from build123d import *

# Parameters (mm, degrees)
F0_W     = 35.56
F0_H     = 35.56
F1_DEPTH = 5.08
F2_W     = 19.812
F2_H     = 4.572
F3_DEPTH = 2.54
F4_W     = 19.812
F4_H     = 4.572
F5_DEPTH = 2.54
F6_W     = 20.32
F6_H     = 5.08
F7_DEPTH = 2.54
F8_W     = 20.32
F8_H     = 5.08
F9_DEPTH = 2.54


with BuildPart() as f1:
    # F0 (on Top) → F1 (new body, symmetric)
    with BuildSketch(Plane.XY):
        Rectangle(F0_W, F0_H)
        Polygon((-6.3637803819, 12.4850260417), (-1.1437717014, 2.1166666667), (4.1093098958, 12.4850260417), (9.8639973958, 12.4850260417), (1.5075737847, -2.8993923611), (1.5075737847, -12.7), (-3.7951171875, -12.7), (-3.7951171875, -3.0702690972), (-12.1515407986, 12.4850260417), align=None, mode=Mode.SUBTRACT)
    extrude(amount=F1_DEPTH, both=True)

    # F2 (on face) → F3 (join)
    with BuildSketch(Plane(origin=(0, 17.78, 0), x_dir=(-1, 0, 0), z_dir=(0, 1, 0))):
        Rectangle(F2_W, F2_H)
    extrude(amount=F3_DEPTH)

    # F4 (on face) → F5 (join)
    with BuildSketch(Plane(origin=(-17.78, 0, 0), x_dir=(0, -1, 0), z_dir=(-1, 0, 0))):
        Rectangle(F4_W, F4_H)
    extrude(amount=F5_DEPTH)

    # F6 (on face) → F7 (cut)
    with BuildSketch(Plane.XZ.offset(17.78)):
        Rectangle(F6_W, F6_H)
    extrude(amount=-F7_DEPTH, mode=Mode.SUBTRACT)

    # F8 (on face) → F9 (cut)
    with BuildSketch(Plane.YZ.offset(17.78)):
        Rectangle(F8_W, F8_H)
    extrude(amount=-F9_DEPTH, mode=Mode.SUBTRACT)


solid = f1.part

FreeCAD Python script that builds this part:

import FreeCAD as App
import Part
import Sketcher
Q = App.Units.Quantity

doc = App.newDocument("Part")
params = doc.addObject("Spreadsheet::Sheet", "Params")
for row, (alias, value) in enumerate([
    ("sketch1_width", "1.4 in"),
    ("pad1_length", "0.4 in"),
    ("sketch2_width", "0.78 in"),
    ("sketch2_height", "0.18 in"),
    ("pad2_length", "0.1 in"),
    ("sketch3_width", "0.78 in"),
    ("sketch3_height", "0.18 in"),
    ("pad3_length", "0.1 in"),
    ("sketch4_width", "0.8 in"),
    ("sketch4_height", "0.2 in"),
    ("pocket1_length", "0.1 in"),
    ("sketch5_width", "0.8 in"),
    ("sketch5_height", "0.2 in"),
    ("pocket2_length", "0.1 in"),
], start=1):
    params.set(f"A{row}", alias)
    params.set(f"B{row}", "=" + value)
    params.setAlias(f"B{row}", alias)

body = doc.addObject("PartDesign::Body", "Body")

# Sketch on XY plane
sketch1 = body.newObject("Sketcher::SketchObject", "Sketch")
sketch1.AttachmentSupport = (doc.getObject("XY_Plane"), [""])
sketch1.MapMode = "FlatFace"
sketch1.addGeometry([
    Part.LineSegment(App.Vector(-18, 18, 0), App.Vector(-18, -18, 0)),  # 0
    Part.LineSegment(App.Vector(-18, -18, 0), App.Vector(18, -18, 0)),  # 1
    Part.LineSegment(App.Vector(18, -18, 0), App.Vector(18, 18, 0)),  # 2
    Part.LineSegment(App.Vector(18, 18, 0), App.Vector(-18, 18, 0)),  # 3
    Part.LineSegment(App.Vector(-12, 12, 0), App.Vector(-6, 12, 0)),  # 4
    Part.LineSegment(App.Vector(-6, 12, 0), App.Vector(-1, 2, 0)),  # 5
    Part.LineSegment(App.Vector(-1, 2, 0), App.Vector(4, 12, 0)),  # 6
    Part.LineSegment(App.Vector(4, 12, 0), App.Vector(10, 12, 0)),  # 7
    Part.LineSegment(App.Vector(10, 12, 0), App.Vector(2, -3, 0)),  # 8
    Part.LineSegment(App.Vector(2, -3, 0), App.Vector(2, -13, 0)),  # 9
    Part.LineSegment(App.Vector(2, -13, 0), App.Vector(-4, -13, 0)),  # 10
    Part.LineSegment(App.Vector(-4, -13, 0), App.Vector(-4, -3, 0)),  # 11
    Part.LineSegment(App.Vector(-4, -3, 0), App.Vector(-12, 12, 0)),  # 12
], False)
sketch1.addConstraint([
    Sketcher.Constraint("Coincident", 0, 2, 1, 1),
    Sketcher.Constraint("Coincident", 1, 2, 2, 1),
    Sketcher.Constraint("Coincident", 2, 2, 3, 1),
    Sketcher.Constraint("Coincident", 3, 2, 0, 1),
    Sketcher.Constraint("Coincident", 4, 2, 5, 1),
    Sketcher.Constraint("Coincident", 5, 2, 6, 1),
    Sketcher.Constraint("Coincident", 6, 2, 7, 1),
    Sketcher.Constraint("Coincident", 7, 2, 8, 1),
    Sketcher.Constraint("Coincident", 8, 2, 9, 1),
    Sketcher.Constraint("Coincident", 9, 2, 10, 1),
    Sketcher.Constraint("Coincident", 10, 2, 11, 1),
    Sketcher.Constraint("Coincident", 11, 2, 12, 1),
    Sketcher.Constraint("Coincident", 12, 2, 4, 1),
    Sketcher.Constraint("Vertical", 0),
    Sketcher.Constraint("Horizontal", 1),
    Sketcher.Constraint("Vertical", 2),
    Sketcher.Constraint("Horizontal", 3),
    Sketcher.Constraint("Horizontal", 4),
    Sketcher.Constraint("Horizontal", 7),
    Sketcher.Constraint("Vertical", 9),
    Sketcher.Constraint("Horizontal", 10),
    Sketcher.Constraint("Vertical", 11),
    Sketcher.Constraint("Symmetric", 0, 2, 2, 2, -1, 1),
    Sketcher.Constraint("Horizontal", 4, 2, 6, 2),
    Sketcher.Constraint("Equal", 3, 0),
    Sketcher.Constraint("DistanceX", 1, 1, 1, 2, Q("1.4 in")),
    Sketcher.Constraint("DistanceY", 9, 2, -1, 1, Q("0.5 in")),
    Sketcher.Constraint("DistanceX", 4, 1, 4, 2, Q("5.78776 mm")),
    Sketcher.Constraint("DistanceX", 10, 2, 10, 1, Q("5.302691 mm")),
    Sketcher.Constraint("DistanceY", 11, 1, 11, 2, Q("9.629731 mm")),
    Sketcher.Constraint("Distance", 8, Q("17.507431 mm")),
    Sketcher.Constraint("DistanceX", 7, 1, 7, 2, Q("5.754688 mm")),
    Sketcher.Constraint("DistanceY", 9, 2, 9, 1, Q("9.800608 mm")),
    Sketcher.Constraint("DistanceX", 4, 2, -1, 1, Q("6.36378 mm")),
    Sketcher.Constraint("DistanceX", 5, 2, -1, 1, Q("1.143772 mm")),
    Sketcher.Constraint("DistanceX", -1, 1, 6, 2, Q("4.10931 mm")),
    Sketcher.Constraint("DistanceY", 5, 2, 4, 2, Q("10.368359 mm")),
    Sketcher.Constraint("DistanceY", 8, 2, 5, 2, Q("5.016059 mm")),
])
sketch1.setExpression("Constraints[25]", "Params.sketch1_width")
pad1 = body.newObject("PartDesign::Pad", "Pad")
pad1.Profile = sketch1
pad1.setExpression("Length", "Params.pad1_length")
pad1.Midplane = True

# Sketch on XZ plane
sketch2 = body.newObject("Sketcher::SketchObject", "Sketch001")
sketch2.AttachmentSupport = (doc.getObject("XZ_Plane"), [""])
sketch2.MapMode = "FlatFace"
sketch2.AttachmentOffset = App.Placement(App.Vector(0, 0, -0.7 * 25.4), App.Rotation())
sketch2.addGeometry([
    Part.LineSegment(App.Vector(9.9, 2.3, 0), App.Vector(9.9, -2.3, 0)),
    Part.LineSegment(App.Vector(9.9, -2.3, 0), App.Vector(-9.9, -2.3, 0)),
    Part.LineSegment(App.Vector(-9.9, -2.3, 0), App.Vector(-9.9, 2.3, 0)),
    Part.LineSegment(App.Vector(-9.9, 2.3, 0), App.Vector(9.9, 2.3, 0)),
], False)
sketch2.addConstraint([
    Sketcher.Constraint("Coincident", 0, 2, 1, 1),
    Sketcher.Constraint("Coincident", 1, 2, 2, 1),
    Sketcher.Constraint("Coincident", 2, 2, 3, 1),
    Sketcher.Constraint("Coincident", 3, 2, 0, 1),
    Sketcher.Constraint("Vertical", 0),
    Sketcher.Constraint("Horizontal", 1),
    Sketcher.Constraint("Vertical", 2),
    Sketcher.Constraint("Horizontal", 3),
    Sketcher.Constraint("Symmetric", 0, 2, 2, 2, -1, 1),
    Sketcher.Constraint("DistanceX", 1, 2, 1, 1, Q("0.78 in")),
    Sketcher.Constraint("DistanceY", 0, 2, 0, 1, Q("0.18 in")),
])
sketch2.setExpression("Constraints[9]", "Params.sketch2_width")
sketch2.setExpression("Constraints[10]", "Params.sketch2_height")
pad2 = body.newObject("PartDesign::Pad", "Pad001")
pad2.Profile = sketch2
pad2.setExpression("Length", "Params.pad2_length")
pad2.Reversed = True

# Sketch on YZ plane
sketch3 = body.newObject("Sketcher::SketchObject", "Sketch002")
sketch3.AttachmentSupport = (doc.getObject("YZ_Plane"), [""])
sketch3.MapMode = "FlatFace"
sketch3.AttachmentOffset = App.Placement(App.Vector(0, 0, -0.7 * 25.4), App.Rotation())
sketch3.addGeometry([
    Part.LineSegment(App.Vector(9.9, 2.3, 0), App.Vector(9.9, -2.3, 0)),
    Part.LineSegment(App.Vector(9.9, -2.3, 0), App.Vector(-9.9, -2.3, 0)),
    Part.LineSegment(App.Vector(-9.9, -2.3, 0), App.Vector(-9.9, 2.3, 0)),
    Part.LineSegment(App.Vector(-9.9, 2.3, 0), App.Vector(9.9, 2.3, 0)),
], False)
sketch3.addConstraint([
    Sketcher.Constraint("Coincident", 0, 2, 1, 1),
    Sketcher.Constraint("Coincident", 1, 2, 2, 1),
    Sketcher.Constraint("Coincident", 2, 2, 3, 1),
    Sketcher.Constraint("Coincident", 3, 2, 0, 1),
    Sketcher.Constraint("Vertical", 0),
    Sketcher.Constraint("Horizontal", 1),
    Sketcher.Constraint("Vertical", 2),
    Sketcher.Constraint("Horizontal", 3),
    Sketcher.Constraint("Symmetric", 0, 2, 2, 2, -1, 1),
    Sketcher.Constraint("DistanceX", 1, 2, 1, 1, Q("0.78 in")),
    Sketcher.Constraint("DistanceY", 0, 2, 0, 1, Q("0.18 in")),
])
sketch3.setExpression("Constraints[9]", "Params.sketch3_width")
sketch3.setExpression("Constraints[10]", "Params.sketch3_height")
pad3 = body.newObject("PartDesign::Pad", "Pad002")
pad3.Profile = sketch3
pad3.setExpression("Length", "Params.pad3_length")
pad3.Reversed = True

# Sketch on XZ plane
sketch4 = body.newObject("Sketcher::SketchObject", "Sketch003")
sketch4.AttachmentSupport = (doc.getObject("XZ_Plane"), [""])
sketch4.MapMode = "FlatFace"
sketch4.AttachmentOffset = App.Placement(App.Vector(0, 0, 0.7 * 25.4), App.Rotation())
sketch4.addGeometry([
    Part.LineSegment(App.Vector(-10, 3, 0), App.Vector(-10, -3, 0)),
    Part.LineSegment(App.Vector(-10, -3, 0), App.Vector(10, -3, 0)),
    Part.LineSegment(App.Vector(10, -3, 0), App.Vector(10, 3, 0)),
    Part.LineSegment(App.Vector(10, 3, 0), App.Vector(-10, 3, 0)),
], False)
sketch4.addConstraint([
    Sketcher.Constraint("Coincident", 0, 2, 1, 1),
    Sketcher.Constraint("Coincident", 1, 2, 2, 1),
    Sketcher.Constraint("Coincident", 2, 2, 3, 1),
    Sketcher.Constraint("Coincident", 3, 2, 0, 1),
    Sketcher.Constraint("Vertical", 0),
    Sketcher.Constraint("Horizontal", 1),
    Sketcher.Constraint("Vertical", 2),
    Sketcher.Constraint("Horizontal", 3),
    Sketcher.Constraint("Symmetric", 0, 2, 2, 2, -1, 1),
    Sketcher.Constraint("DistanceX", 1, 1, 1, 2, Q("0.8 in")),
    Sketcher.Constraint("DistanceY", 0, 2, 0, 1, Q("0.2 in")),
])
sketch4.setExpression("Constraints[9]", "Params.sketch4_width")
sketch4.setExpression("Constraints[10]", "Params.sketch4_height")
pocket1 = body.newObject("PartDesign::Pocket", "Pocket")
pocket1.Profile = sketch4
pocket1.setExpression("Length", "Params.pocket1_length")

# Sketch on YZ plane
sketch5 = body.newObject("Sketcher::SketchObject", "Sketch004")
sketch5.AttachmentSupport = (doc.getObject("YZ_Plane"), [""])
sketch5.MapMode = "FlatFace"
sketch5.AttachmentOffset = App.Placement(App.Vector(0, 0, 0.7 * 25.4), App.Rotation())
sketch5.addGeometry([
    Part.LineSegment(App.Vector(-10, 3, 0), App.Vector(-10, -3, 0)),
    Part.LineSegment(App.Vector(-10, -3, 0), App.Vector(10, -3, 0)),
    Part.LineSegment(App.Vector(10, -3, 0), App.Vector(10, 3, 0)),
    Part.LineSegment(App.Vector(10, 3, 0), App.Vector(-10, 3, 0)),
], False)
sketch5.addConstraint([
    Sketcher.Constraint("Coincident", 0, 2, 1, 1),
    Sketcher.Constraint("Coincident", 1, 2, 2, 1),
    Sketcher.Constraint("Coincident", 2, 2, 3, 1),
    Sketcher.Constraint("Coincident", 3, 2, 0, 1),
    Sketcher.Constraint("Vertical", 0),
    Sketcher.Constraint("Horizontal", 1),
    Sketcher.Constraint("Vertical", 2),
    Sketcher.Constraint("Horizontal", 3),
    Sketcher.Constraint("Symmetric", 0, 2, 2, 2, -1, 1),
    Sketcher.Constraint("DistanceX", 1, 1, 1, 2, Q("0.8 in")),
    Sketcher.Constraint("DistanceY", 0, 2, 0, 1, Q("0.2 in")),
])
sketch5.setExpression("Constraints[9]", "Params.sketch5_width")
sketch5.setExpression("Constraints[10]", "Params.sketch5_height")
pocket2 = body.newObject("PartDesign::Pocket", "Pocket001")
pocket2.Profile = sketch5
pocket2.setExpression("Length", "Params.pocket2_length")

doc.recompute()
